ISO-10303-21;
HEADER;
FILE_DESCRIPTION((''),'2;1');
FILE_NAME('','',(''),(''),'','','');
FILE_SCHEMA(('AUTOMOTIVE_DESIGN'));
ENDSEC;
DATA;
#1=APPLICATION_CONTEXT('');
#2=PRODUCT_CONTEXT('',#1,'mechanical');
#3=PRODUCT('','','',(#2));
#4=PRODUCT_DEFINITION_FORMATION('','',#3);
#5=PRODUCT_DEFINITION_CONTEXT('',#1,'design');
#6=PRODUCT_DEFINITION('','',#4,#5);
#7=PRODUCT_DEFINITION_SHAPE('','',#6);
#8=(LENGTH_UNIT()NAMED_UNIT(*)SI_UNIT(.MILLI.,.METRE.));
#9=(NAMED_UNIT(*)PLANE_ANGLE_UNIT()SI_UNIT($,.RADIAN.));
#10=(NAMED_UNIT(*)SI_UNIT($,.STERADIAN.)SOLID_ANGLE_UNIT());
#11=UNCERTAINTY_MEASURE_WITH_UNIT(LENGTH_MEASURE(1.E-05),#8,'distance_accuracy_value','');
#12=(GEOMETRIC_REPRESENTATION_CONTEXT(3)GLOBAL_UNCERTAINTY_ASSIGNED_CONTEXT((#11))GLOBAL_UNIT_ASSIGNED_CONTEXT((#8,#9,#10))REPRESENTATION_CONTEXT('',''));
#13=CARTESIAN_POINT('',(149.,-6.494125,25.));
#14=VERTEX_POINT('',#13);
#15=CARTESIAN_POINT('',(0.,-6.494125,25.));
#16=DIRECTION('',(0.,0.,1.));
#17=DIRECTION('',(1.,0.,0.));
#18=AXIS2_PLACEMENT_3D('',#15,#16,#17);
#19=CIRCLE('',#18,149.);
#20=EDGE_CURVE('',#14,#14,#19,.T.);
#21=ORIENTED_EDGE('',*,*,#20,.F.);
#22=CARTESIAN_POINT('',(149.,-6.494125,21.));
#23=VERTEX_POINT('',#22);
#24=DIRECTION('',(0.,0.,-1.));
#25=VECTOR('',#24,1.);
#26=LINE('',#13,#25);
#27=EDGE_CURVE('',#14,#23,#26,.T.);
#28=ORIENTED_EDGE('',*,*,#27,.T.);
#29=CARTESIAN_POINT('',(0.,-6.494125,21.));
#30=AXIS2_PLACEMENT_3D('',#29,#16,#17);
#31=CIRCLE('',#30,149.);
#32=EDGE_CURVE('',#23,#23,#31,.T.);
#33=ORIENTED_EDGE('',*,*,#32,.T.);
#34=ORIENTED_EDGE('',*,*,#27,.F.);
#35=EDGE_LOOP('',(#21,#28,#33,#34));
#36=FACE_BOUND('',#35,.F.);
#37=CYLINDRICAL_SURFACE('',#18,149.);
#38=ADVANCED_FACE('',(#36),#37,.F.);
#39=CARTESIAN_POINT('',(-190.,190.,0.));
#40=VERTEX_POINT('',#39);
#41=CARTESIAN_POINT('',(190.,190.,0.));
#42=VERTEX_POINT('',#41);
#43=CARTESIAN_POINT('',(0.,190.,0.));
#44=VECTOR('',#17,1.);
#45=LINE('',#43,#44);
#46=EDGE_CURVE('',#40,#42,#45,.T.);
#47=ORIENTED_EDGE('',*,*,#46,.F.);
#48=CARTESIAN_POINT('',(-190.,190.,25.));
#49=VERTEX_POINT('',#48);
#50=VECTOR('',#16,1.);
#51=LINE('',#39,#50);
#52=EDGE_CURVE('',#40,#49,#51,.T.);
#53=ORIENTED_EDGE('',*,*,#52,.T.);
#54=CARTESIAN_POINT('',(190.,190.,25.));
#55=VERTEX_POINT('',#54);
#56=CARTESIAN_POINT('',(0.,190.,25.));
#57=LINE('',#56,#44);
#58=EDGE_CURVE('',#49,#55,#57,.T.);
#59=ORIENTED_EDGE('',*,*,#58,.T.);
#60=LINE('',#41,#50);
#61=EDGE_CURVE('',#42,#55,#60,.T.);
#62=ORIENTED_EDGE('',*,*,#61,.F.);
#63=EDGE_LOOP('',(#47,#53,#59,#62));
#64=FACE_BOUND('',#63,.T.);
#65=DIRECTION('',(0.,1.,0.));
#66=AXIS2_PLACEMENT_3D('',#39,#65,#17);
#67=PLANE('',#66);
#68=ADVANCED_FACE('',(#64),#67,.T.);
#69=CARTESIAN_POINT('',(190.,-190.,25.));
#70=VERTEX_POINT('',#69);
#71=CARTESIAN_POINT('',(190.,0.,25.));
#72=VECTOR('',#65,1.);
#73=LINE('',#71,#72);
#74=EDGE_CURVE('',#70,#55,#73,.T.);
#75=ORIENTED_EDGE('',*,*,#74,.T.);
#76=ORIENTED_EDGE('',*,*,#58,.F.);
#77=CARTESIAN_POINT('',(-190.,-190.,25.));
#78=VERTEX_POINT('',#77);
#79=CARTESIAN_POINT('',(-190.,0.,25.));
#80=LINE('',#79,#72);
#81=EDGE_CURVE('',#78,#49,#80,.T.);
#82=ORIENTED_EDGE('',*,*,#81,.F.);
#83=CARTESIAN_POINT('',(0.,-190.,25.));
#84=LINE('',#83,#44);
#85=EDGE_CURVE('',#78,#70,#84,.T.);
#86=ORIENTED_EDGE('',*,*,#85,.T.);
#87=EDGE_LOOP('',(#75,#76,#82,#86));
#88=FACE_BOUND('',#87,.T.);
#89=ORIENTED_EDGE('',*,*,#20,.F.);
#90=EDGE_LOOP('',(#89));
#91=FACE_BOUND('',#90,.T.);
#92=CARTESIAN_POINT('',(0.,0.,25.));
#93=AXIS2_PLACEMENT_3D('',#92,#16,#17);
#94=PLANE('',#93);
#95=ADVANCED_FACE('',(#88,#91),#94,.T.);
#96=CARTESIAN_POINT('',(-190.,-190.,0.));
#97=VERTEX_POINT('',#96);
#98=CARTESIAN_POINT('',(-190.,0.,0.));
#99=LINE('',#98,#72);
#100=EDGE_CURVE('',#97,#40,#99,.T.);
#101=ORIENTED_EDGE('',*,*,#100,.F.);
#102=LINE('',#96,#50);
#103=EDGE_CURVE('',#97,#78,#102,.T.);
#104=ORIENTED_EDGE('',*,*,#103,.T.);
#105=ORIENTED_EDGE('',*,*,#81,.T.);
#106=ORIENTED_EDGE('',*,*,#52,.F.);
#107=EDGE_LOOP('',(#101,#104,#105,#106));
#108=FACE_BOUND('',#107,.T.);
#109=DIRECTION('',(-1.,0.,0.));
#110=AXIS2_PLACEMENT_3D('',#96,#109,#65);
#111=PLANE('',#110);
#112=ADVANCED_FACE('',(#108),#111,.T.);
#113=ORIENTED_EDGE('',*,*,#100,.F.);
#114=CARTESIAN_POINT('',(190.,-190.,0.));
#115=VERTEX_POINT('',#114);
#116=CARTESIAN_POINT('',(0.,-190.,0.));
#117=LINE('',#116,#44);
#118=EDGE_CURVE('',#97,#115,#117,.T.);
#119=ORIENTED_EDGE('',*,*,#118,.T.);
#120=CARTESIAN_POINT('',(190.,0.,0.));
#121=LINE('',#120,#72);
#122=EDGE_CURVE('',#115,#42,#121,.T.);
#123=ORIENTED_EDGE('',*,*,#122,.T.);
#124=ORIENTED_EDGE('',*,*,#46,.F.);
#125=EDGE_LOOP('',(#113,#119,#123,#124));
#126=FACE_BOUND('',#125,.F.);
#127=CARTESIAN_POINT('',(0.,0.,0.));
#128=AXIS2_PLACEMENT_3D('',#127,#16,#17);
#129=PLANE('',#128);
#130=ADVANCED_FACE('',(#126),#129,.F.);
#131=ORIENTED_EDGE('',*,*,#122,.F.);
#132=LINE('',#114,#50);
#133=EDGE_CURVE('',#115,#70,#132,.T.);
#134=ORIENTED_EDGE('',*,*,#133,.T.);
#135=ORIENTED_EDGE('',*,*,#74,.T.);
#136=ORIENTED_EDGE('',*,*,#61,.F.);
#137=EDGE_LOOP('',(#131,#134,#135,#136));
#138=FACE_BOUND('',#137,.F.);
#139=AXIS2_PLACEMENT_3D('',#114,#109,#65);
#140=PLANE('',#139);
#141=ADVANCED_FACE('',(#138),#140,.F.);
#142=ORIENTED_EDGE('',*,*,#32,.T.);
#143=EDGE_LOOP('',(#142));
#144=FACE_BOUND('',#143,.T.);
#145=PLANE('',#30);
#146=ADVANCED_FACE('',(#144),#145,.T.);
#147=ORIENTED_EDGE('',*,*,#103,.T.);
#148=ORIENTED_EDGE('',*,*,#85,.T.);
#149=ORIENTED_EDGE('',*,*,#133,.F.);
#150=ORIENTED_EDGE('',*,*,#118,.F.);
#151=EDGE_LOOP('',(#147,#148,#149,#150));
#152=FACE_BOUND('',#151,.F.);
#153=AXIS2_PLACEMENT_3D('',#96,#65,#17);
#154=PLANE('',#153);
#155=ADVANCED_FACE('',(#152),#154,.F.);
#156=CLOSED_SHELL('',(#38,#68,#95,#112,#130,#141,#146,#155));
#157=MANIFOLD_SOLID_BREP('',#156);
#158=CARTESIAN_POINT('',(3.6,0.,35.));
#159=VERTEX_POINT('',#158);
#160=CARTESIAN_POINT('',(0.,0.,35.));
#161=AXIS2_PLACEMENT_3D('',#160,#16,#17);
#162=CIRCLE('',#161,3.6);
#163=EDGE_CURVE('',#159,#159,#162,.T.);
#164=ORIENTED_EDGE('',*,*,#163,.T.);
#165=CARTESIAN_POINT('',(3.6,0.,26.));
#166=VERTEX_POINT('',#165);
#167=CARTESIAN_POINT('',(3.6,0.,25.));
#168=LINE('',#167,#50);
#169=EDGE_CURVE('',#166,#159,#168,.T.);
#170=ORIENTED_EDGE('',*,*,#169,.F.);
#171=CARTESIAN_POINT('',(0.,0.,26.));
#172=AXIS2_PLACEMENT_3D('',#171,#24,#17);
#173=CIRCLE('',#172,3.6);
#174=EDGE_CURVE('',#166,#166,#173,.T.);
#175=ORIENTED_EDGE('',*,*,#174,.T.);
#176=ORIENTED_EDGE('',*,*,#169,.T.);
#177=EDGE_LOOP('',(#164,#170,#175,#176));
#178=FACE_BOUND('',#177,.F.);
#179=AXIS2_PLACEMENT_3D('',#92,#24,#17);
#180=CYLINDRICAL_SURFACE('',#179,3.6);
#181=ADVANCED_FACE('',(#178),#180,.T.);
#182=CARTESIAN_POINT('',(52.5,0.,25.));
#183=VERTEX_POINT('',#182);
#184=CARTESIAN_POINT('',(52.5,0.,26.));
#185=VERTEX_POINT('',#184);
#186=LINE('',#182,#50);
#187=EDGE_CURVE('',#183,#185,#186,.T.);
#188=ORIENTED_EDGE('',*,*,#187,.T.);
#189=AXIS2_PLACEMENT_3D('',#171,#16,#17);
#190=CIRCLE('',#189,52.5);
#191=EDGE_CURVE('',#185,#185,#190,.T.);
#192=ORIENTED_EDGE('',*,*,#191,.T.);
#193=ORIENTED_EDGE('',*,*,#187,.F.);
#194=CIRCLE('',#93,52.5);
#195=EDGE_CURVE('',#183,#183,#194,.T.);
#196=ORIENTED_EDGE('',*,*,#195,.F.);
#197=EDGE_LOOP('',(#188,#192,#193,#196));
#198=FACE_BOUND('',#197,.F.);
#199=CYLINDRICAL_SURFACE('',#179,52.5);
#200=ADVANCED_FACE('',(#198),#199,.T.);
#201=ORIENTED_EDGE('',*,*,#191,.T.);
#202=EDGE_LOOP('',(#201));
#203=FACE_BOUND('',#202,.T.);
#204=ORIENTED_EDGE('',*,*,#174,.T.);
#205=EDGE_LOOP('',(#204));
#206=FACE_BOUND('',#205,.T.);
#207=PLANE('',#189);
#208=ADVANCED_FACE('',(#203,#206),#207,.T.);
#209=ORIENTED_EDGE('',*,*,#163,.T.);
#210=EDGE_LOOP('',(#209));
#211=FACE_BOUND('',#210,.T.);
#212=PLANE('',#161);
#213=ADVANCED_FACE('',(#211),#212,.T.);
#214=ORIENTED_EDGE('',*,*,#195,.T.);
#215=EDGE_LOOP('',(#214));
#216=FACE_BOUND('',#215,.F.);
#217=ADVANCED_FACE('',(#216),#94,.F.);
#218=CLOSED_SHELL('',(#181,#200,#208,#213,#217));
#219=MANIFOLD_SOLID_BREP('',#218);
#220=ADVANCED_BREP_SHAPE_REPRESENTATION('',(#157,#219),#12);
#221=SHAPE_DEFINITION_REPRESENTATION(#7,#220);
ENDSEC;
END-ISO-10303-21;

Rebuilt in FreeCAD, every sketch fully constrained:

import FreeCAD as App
import Part
import Sketcher
Q = App.Units.Quantity

doc = App.newDocument("Part")
body = doc.addObject("PartDesign::Body", "Body")

sketch1 = body.newObject("Sketcher::SketchObject", "Sketch")
sketch1.AttachmentSupport = (doc.getObject("XY_Plane"), [""])
sketch1.MapMode = "FlatFace"
sketch1.addGeometry([
    Part.LineSegment(App.Vector(-190, 190, 0), App.Vector(-190, -190, 0)),
    Part.LineSegment(App.Vector(-190, -190, 0), App.Vector(190, -190, 0)),
    Part.LineSegment(App.Vector(190, -190, 0), App.Vector(190, 190, 0)),
    Part.LineSegment(App.Vector(190, 190, 0), App.Vector(-190, 190, 0)),
], False)
sketch1.addConstraint([
    Sketcher.Constraint("Coincident", 0, 2, 1, 1),
    Sketcher.Constraint("Coincident", 1, 2, 2, 1),
    Sketcher.Constraint("Coincident", 2, 2, 3, 1),
    Sketcher.Constraint("Coincident", 3, 2, 0, 1),
    Sketcher.Constraint("Vertical", 0),
    Sketcher.Constraint("Horizontal", 1),
    Sketcher.Constraint("Vertical", 2),
    Sketcher.Constraint("Horizontal", 3),
    Sketcher.Constraint("Symmetric", 0, 2, 2, 2, -1, 1),
    Sketcher.Constraint("Equal", 3, 0),
    Sketcher.Constraint("DistanceX", 1, 1, 1, 2, Q("380 mm")),
])
pad1 = body.newObject("PartDesign::Pad", "Pad")
pad1.Profile = sketch1
pad1.Length = 25

sketch2 = body.newObject("Sketcher::SketchObject", "Sketch001")
sketch2.AttachmentSupport = (doc.getObject("XY_Plane"), [""])
sketch2.MapMode = "FlatFace"
sketch2.AttachmentOffset = App.Placement(App.Vector(0, 0, 25), App.Rotation())
sketch2.addGeometry(Part.Circle(App.Vector(0, -6, 0), App.Vector(0, 0, 1), 149), False)
sketch2.addConstraint([
    Sketcher.Constraint("PointOnObject", 0, 3, -2),
    Sketcher.Constraint("Diameter", 0, Q("298 mm")),
    Sketcher.Constraint("DistanceY", 0, 3, -1, 1, Q("6.494125 mm")),
])
pocket1 = body.newObject("PartDesign::Pocket", "Pocket")
pocket1.Profile = sketch2
pocket1.Length = 4
body2 = doc.addObject("PartDesign::Body", "Body001")

sketch3 = body2.newObject("Sketcher::SketchObject", "Sketch002")
sketch3.AttachmentSupport = (doc.getObject("XY_Plane001"), [""])
sketch3.MapMode = "FlatFace"
sketch3.AttachmentOffset = App.Placement(App.Vector(0, 0, 25), App.Rotation())
sketch3.addGeometry(Part.Circle(App.Vector(0, 0, 0), App.Vector(0, 0, 1), 52), False)
sketch3.addConstraint([
    Sketcher.Constraint("Coincident", 0, 3, -1, 1),
    Sketcher.Constraint("Diameter", 0, Q("105 mm")),
])
pad2 = body2.newObject("PartDesign::Pad", "Pad001")
pad2.Profile = sketch3
pad2.Length = 1

sketch4 = body2.newObject("Sketcher::SketchObject", "Sketch003")
sketch4.AttachmentSupport = (doc.getObject("XY_Plane001"), [""])
sketch4.MapMode = "FlatFace"
sketch4.AttachmentOffset = App.Placement(App.Vector(0, 0, 25), App.Rotation())
sketch4.addGeometry(Part.Circle(App.Vector(0, 0, 0), App.Vector(0, 0, 1), 3.6), False)
sketch4.addConstraint([
    Sketcher.Constraint("Coincident", 0, 3, -1, 1),
    Sketcher.Constraint("Diameter", 0, Q("7.2 mm")),
])
pad3 = body2.newObject("PartDesign::Pad", "Pad002")
pad3.Profile = sketch4
pad3.Length = 10

doc.recompute()
